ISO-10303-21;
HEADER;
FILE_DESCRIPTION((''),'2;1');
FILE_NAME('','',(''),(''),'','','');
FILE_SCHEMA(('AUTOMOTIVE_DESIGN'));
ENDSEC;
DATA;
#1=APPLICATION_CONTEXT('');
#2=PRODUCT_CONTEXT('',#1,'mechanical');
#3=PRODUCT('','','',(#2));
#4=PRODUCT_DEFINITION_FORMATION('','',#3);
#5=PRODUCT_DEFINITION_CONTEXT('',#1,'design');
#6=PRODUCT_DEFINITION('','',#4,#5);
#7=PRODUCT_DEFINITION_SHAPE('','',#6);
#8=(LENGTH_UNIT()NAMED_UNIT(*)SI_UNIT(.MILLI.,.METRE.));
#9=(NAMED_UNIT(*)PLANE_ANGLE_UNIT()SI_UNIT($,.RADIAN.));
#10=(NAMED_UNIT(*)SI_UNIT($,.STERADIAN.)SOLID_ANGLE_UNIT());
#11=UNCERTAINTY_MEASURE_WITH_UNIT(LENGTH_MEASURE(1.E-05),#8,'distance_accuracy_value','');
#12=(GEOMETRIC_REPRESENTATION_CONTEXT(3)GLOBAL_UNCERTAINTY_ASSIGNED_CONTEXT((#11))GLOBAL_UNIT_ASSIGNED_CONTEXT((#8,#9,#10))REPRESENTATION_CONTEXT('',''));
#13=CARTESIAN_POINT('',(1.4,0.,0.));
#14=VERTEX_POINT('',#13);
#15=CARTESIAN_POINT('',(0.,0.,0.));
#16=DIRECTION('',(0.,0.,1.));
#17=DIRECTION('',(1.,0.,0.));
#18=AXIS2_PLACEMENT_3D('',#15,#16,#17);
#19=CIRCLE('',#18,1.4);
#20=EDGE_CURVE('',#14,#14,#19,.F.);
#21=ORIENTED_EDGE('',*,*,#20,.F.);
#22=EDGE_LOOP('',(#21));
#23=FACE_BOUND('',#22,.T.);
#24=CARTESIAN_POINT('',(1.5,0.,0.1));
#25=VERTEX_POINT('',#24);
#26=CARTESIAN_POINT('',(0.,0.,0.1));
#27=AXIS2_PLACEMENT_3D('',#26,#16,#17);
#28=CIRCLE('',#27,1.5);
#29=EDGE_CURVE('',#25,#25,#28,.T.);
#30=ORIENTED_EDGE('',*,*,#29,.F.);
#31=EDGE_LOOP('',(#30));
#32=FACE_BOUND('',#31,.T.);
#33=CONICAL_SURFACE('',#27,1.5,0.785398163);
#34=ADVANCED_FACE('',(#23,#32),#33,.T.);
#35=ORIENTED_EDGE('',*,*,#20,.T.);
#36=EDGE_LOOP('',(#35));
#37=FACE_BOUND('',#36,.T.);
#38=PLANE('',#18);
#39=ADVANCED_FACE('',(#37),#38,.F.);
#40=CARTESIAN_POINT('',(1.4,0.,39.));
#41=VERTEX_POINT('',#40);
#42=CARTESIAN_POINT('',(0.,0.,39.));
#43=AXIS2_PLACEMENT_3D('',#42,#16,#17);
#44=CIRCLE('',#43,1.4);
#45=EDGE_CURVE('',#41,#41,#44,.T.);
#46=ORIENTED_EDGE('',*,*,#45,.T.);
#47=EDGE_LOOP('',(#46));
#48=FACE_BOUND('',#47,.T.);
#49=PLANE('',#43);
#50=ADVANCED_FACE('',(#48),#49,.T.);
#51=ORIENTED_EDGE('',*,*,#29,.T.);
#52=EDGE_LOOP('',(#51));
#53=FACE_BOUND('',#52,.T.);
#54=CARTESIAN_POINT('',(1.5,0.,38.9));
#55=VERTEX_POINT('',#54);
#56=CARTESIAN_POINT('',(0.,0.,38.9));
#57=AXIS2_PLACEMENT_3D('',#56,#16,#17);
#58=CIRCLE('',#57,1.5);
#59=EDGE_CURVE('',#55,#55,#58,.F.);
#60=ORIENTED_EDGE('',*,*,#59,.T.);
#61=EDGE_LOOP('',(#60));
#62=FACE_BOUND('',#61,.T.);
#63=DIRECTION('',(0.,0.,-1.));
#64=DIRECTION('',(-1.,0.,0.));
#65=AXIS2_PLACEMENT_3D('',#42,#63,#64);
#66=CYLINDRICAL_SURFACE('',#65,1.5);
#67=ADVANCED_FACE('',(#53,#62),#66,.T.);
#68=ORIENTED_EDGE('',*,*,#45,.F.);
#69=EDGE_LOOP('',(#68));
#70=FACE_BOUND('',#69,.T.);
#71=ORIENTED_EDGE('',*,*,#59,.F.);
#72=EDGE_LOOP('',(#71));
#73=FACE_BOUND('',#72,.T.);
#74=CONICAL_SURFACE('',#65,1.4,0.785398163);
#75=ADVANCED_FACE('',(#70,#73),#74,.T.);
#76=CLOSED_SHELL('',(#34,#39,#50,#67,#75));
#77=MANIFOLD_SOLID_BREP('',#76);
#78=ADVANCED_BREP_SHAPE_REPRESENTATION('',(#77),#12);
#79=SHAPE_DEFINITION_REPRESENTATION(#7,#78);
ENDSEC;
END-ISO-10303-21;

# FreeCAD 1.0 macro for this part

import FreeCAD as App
import Part
import Sketcher
from FreeCAD import Vector
Q = App.Units.Quantity


def edges_at(feature, points):
    """Names of the edges that pass closest to the given points."""
    edges = feature.Shape.Edges
    near = lambda p: min(range(len(edges)), key=lambda i: edges[i].distToShape(Part.Vertex(*p))[0])
    return sorted({f"Edge{near(p) + 1}" for p in points})

doc = App.newDocument("Part")
body = doc.addObject("PartDesign::Body", "Body")

# Sketch on XY plane
sketch1 = body.newObject("Sketcher::SketchObject", "Sketch")
sketch1.AttachmentSupport = (doc.getObject("XY_Plane"), [""])
sketch1.MapMode = "FlatFace"
sketch1.addGeometry(Part.Circle(Vector(0, 0, 0), Vector(0, 0, 1), 1.5), False)
sketch1.addConstraint(Sketcher.Constraint("Coincident", 0, 3, -1, 1))
sketch1.addConstraint(Sketcher.Constraint("Diameter", 0, Q("3 mm")))
pad1 = body.newObject("PartDesign::Pad", "Pad")
pad1.Profile = sketch1
pad1.Length = 39
doc.recompute()

chamfer = body.newObject("PartDesign::Chamfer", "Chamfer")
chamfer.Base = (pad1, edges_at(pad1, [(-1.5, 0, 0), (-1.5, 0, 39)]))
chamfer.Size = 0.1

doc.recompute()
